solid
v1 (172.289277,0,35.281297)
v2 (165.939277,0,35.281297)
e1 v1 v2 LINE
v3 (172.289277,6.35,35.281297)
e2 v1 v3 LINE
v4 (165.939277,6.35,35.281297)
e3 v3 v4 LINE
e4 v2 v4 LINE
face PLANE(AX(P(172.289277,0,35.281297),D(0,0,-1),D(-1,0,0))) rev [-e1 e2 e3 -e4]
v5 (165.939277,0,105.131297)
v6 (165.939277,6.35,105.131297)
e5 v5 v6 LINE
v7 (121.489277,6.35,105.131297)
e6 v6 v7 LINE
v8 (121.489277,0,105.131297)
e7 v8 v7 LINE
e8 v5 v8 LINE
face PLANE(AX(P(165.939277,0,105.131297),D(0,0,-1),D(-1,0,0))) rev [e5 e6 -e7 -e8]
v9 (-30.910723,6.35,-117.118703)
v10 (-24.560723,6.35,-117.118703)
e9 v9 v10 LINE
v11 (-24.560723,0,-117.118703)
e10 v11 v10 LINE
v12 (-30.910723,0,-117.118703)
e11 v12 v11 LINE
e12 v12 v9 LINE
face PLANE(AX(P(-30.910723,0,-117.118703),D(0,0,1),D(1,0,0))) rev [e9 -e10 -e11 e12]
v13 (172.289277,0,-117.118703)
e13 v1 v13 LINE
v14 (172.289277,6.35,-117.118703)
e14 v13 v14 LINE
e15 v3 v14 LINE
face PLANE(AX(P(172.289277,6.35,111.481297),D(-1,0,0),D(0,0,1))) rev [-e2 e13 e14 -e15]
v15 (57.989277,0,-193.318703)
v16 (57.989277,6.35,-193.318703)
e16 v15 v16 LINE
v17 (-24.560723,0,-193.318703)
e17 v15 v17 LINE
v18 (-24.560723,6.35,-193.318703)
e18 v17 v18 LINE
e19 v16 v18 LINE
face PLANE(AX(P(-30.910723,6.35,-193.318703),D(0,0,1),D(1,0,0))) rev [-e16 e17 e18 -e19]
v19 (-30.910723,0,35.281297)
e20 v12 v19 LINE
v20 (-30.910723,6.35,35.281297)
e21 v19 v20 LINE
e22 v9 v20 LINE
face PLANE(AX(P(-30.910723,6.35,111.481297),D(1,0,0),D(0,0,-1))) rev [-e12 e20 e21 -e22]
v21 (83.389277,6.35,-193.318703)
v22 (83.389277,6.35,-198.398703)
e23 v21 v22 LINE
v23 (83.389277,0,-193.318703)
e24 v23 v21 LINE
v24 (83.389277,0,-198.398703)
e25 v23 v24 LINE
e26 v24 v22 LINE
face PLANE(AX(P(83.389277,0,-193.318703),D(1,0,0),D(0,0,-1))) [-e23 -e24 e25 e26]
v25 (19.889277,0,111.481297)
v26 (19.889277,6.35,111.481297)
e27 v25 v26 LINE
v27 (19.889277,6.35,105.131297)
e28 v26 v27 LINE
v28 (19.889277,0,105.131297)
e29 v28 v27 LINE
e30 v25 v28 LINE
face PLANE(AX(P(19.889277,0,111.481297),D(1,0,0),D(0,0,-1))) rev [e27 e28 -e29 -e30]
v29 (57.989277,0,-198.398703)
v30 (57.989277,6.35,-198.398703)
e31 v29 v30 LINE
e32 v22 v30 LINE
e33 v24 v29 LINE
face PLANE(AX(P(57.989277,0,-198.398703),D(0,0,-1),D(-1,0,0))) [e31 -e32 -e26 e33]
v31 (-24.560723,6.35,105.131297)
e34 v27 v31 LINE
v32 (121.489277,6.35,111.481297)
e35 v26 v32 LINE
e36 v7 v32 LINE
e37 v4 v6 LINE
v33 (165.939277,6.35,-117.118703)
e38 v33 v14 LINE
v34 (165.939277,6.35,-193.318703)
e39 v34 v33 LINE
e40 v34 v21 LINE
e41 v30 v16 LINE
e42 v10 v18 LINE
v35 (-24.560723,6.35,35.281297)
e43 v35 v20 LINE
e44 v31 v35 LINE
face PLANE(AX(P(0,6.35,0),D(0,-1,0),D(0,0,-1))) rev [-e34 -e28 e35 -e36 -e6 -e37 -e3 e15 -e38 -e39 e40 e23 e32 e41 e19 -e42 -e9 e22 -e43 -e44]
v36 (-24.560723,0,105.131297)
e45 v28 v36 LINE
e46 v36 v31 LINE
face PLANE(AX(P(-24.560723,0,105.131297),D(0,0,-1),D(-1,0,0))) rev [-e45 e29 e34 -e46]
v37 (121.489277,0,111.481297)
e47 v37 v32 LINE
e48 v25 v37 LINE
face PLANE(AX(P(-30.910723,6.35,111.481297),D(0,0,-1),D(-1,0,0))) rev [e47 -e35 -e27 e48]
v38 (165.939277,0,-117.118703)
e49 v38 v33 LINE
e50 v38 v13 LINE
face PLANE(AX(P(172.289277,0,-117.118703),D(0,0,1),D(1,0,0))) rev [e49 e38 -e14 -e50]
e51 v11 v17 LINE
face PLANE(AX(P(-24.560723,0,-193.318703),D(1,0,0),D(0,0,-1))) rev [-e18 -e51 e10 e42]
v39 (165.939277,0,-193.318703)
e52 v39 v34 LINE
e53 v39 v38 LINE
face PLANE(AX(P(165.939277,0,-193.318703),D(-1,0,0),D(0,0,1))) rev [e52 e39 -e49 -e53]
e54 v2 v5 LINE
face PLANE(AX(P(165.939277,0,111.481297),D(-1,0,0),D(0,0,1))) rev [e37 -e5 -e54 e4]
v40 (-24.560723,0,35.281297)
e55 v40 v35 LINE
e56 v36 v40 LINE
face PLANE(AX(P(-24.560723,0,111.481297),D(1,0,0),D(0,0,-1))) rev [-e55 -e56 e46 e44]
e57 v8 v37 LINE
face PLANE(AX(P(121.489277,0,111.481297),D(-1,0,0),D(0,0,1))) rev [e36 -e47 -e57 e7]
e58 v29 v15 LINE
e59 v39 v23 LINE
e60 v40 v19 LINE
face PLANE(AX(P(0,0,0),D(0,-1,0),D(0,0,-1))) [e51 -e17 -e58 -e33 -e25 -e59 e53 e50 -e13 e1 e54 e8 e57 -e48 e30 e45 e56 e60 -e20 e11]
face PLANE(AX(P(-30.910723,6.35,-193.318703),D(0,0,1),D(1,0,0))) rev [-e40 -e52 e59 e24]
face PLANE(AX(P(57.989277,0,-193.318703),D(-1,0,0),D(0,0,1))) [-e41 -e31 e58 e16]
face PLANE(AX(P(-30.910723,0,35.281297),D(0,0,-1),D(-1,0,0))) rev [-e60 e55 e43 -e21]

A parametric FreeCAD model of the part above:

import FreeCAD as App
import Part
import Sketcher
Q = App.Units.Quantity

doc = App.newDocument("Part")
body = doc.addObject("PartDesign::Body", "Body")

# Sketch on XZ plane
sketch1 = doc.addObject("Sketcher::SketchObject", "Sketch")
body.addObject(sketch1)
sketch1.AttachmentSupport = (doc.XZ_Plane, [""])
sketch1.MapMode = "FlatFace"
sketch1.addGeometry([
    Part.LineSegment(App.Vector(-31, -193, 0), App.Vector(-31, 111, 0)),
    Part.LineSegment(App.Vector(-31, 111, 0), App.Vector(172, 111, 0)),
    Part.LineSegment(App.Vector(172, 111, 0), App.Vector(172, -193, 0)),
    Part.LineSegment(App.Vector(172, -193, 0), App.Vector(-31, -193, 0)),
], False)
sketch1.addConstraint([
    Sketcher.Constraint("Coincident", 0, 2, 1, 1),
    Sketcher.Constraint("Coincident", 1, 2, 2, 1),
    Sketcher.Constraint("Coincident", 2, 2, 3, 1),
    Sketcher.Constraint("Coincident", 3, 2, 0, 1),
    Sketcher.Constraint("Vertical", 0),
    Sketcher.Constraint("Horizontal", 1),
    Sketcher.Constraint("Vertical", 2),
    Sketcher.Constraint("Horizontal", 3),
    Sketcher.Constraint("DistanceX", 1, 1, 1, 2, Q("8 in")),
    Sketcher.Constraint("DistanceY", 0, 1, 0, 2, Q("12 in")),
    Sketcher.Constraint("DistanceX", 0, 2, -1, 1, 30.910723),
    Sketcher.Constraint("DistanceY", -1, 1, 0, 2, 111.481297),
])
pad1 = doc.addObject("PartDesign::Pad", "Pad")
body.addObject(pad1)
pad1.Profile = sketch1
pad1.Length = Q("0.25 in")
pad1.Reversed = True

# Sketch on XZ plane
sketch2 = doc.addObject("Sketcher::SketchObject", "Sketch001")
body.addObject(sketch2)
sketch2.AttachmentSupport = (doc.XZ_Plane, [""])
sketch2.MapMode = "FlatFace"
sketch2.AttachmentOffset = App.Placement(App.Vector(0, 0, -0.25 * 25.4), App.Rotation())
sketch2.addGeometry([
    Part.LineSegment(App.Vector(-31, 35, 0), App.Vector(-31, 111, 0)),  # 0
    Part.LineSegment(App.Vector(-31, 111, 0), App.Vector(-25, 111, 0)),  # 1
    Part.LineSegment(App.Vector(-25, 111, 0), App.Vector(-25, 35, 0)),  # 2
    Part.LineSegment(App.Vector(-25, 35, 0), App.Vector(-31, 35, 0)),  # 3
    Part.LineSegment(App.Vector(-31, -193, 0), App.Vector(-31, -117, 0)),  # 4
    Part.LineSegment(App.Vector(-31, -117, 0), App.Vector(-25, -117, 0)),  # 5
    Part.LineSegment(App.Vector(-25, -117, 0), App.Vector(-25, -193, 0)),  # 6
    Part.LineSegment(App.Vector(-25, -193, 0), App.Vector(-31, -193, 0)),  # 7
    Part.LineSegment(App.Vector(166, -193, 0), App.Vector(166, -117, 0)),  # 8
    Part.LineSegment(App.Vector(166, -117, 0), App.Vector(172, -117, 0)),  # 9
    Part.LineSegment(App.Vector(172, -117, 0), App.Vector(172, -193, 0)),  # 10
    Part.LineSegment(App.Vector(172, -193, 0), App.Vector(166, -193, 0)),  # 11
    Part.LineSegment(App.Vector(166, 35, 0), App.Vector(166, 111, 0)),  # 12
    Part.LineSegment(App.Vector(166, 111, 0), App.Vector(172, 111, 0)),  # 13
    Part.LineSegment(App.Vector(172, 111, 0), App.Vector(172, 35, 0)),  # 14
    Part.LineSegment(App.Vector(172, 35, 0), App.Vector(166, 35, 0)),  # 15
], False)
sketch2.addConstraint([
    Sketcher.Constraint("Coincident", 0, 2, 1, 1),
    Sketcher.Constraint("Coincident", 1, 2, 2, 1),
    Sketcher.Constraint("Coincident", 2, 2, 3, 1),
    Sketcher.Constraint("Coincident", 3, 2, 0, 1),
    Sketcher.Constraint("Coincident", 4, 2, 5, 1),
    Sketcher.Constraint("Coincident", 5, 2, 6, 1),
    Sketcher.Constraint("Coincident", 6, 2, 7, 1),
    Sketcher.Constraint("Coincident", 7, 2, 4, 1),
    Sketcher.Constraint("Coincident", 8, 2, 9, 1),
    Sketcher.Constraint("Coincident", 9, 2, 10, 1),
    Sketcher.Constraint("Coincident", 10, 2, 11, 1),
    Sketcher.Constraint("Coincident", 11, 2, 8, 1),
    Sketcher.Constraint("Coincident", 12, 2, 13, 1),
    Sketcher.Constraint("Coincident", 13, 2, 14, 1),
    Sketcher.Constraint("Coincident", 14, 2, 15, 1),
    Sketcher.Constraint("Coincident", 15, 2, 12, 1),
    Sketcher.Constraint("Vertical", 0),
    Sketcher.Constraint("Horizontal", 1),
    Sketcher.Constraint("Vertical", 2),
    Sketcher.Constraint("Horizontal", 3),
    Sketcher.Constraint("Vertical", 4),
    Sketcher.Constraint("Horizontal", 5),
    Sketcher.Constraint("Vertical", 6),
    Sketcher.Constraint("Horizontal", 7),
    Sketcher.Constraint("Vertical", 8),
    Sketcher.Constraint("Horizontal", 9),
    Sketcher.Constraint("Vertical", 10),
    Sketcher.Constraint("Horizontal", 11),
    Sketcher.Constraint("Vertical", 12),
    Sketcher.Constraint("Horizontal", 13),
    Sketcher.Constraint("Vertical", 14),
    Sketcher.Constraint("Horizontal", 15),
    Sketcher.Constraint("Horizontal", 5, 2, 8, 2),
    Sketcher.Constraint("Horizontal", 7, 2, 10, 2),
    Sketcher.Constraint("Horizontal", 1, 2, 12, 2),
    Sketcher.Constraint("Horizontal", 3, 2, 14, 2),
    Sketcher.Constraint("Vertical", 3, 2, 4, 2),
    Sketcher.Constraint("Vertical", 2, 2, 5, 2),
    Sketcher.Constraint("Vertical", 11, 2, 12, 2),
    Sketcher.Constraint("Vertical", 10, 2, 13, 2),
    Sketcher.Constraint("Equal", 7, 9),
    Sketcher.Constraint("Equal", 2, 4),
    Sketcher.Constraint("DistanceY", 0, 1, 0, 2, Q("3 in")),
    Sketcher.Constraint("DistanceY", 4, 2, 3, 2, Q("6 in")),
    Sketcher.Constraint("DistanceX", 4, 2, 9, 2, Q("8 in")),
    Sketcher.Constraint("DistanceX", 1, 1, 1, 2, Q("0.25 in")),
    Sketcher.Constraint("DistanceX", 0, 2, -1, 1, 30.910723),
    Sketcher.Constraint("DistanceY", -1, 1, 0, 2, 111.481297),
])
pocket1 = doc.addObject("PartDesign::Pocket", "Pocket")
body.addObject(pocket1)
pocket1.Profile = sketch2
pocket1.Length = Q("0.25 in")
pocket1.Reversed = True

# Sketch on XZ plane
sketch3 = doc.addObject("Sketcher::SketchObject", "Sketch002")
body.addObject(sketch3)
sketch3.AttachmentSupport = (doc.XZ_Plane, [""])
sketch3.MapMode = "FlatFace"
sketch3.AttachmentOffset = App.Placement(App.Vector(0, 0, -0.25 * 25.4), App.Rotation())
sketch3.addGeometry([
    Part.LineSegment(App.Vector(58, -198, 0), App.Vector(58, -193, 0)),
    Part.LineSegment(App.Vector(58, -193, 0), App.Vector(83, -193, 0)),
    Part.LineSegment(App.Vector(83, -193, 0), App.Vector(83, -198, 0)),
    Part.LineSegment(App.Vector(83, -198, 0), App.Vector(58, -198, 0)),
], False)
sketch3.addConstraint([
    Sketcher.Constraint("Coincident", 0, 2, 1, 1),
    Sketcher.Constraint("Coincident", 1, 2, 2, 1),
    Sketcher.Constraint("Coincident", 2, 2, 3, 1),
    Sketcher.Constraint("Coincident", 3, 2, 0, 1),
    Sketcher.Constraint("Vertical", 0),
    Sketcher.Constraint("Horizontal", 1),
    Sketcher.Constraint("Vertical", 2),
    Sketcher.Constraint("Horizontal", 3),
    Sketcher.Constraint("DistanceX", 1, 1, 1, 2, Q("1 in")),
    Sketcher.Constraint("DistanceY", 0, 1, 0, 2, Q("0.2 in")),
    Sketcher.Constraint("DistanceX", -1, 1, 0, 2, 57.989277),
    Sketcher.Constraint("DistanceY", 0, 2, -1, 1, 193.318703),
])
pad2 = doc.addObject("PartDesign::Pad", "Pad001")
body.addObject(pad2)
pad2.Profile = sketch3
pad2.Length = Q("0.25 in")

# Sketch on XZ plane
sketch4 = doc.addObject("Sketcher::SketchObject", "Sketch003")
body.addObject(sketch4)
sketch4.AttachmentSupport = (doc.XZ_Plane, [""])
sketch4.MapMode = "FlatFace"
sketch4.AttachmentOffset = App.Placement(App.Vector(0, 0, -0.25 * 25.4), App.Rotation())
sketch4.addGeometry([
    Part.LineSegment(App.Vector(-25, 105, 0), App.Vector(-25, 111, 0)),  # 0
    Part.LineSegment(App.Vector(-25, 111, 0), App.Vector(20, 111, 0)),  # 1
    Part.LineSegment(App.Vector(20, 111, 0), App.Vector(20, 105, 0)),  # 2
    Part.LineSegment(App.Vector(20, 105, 0), App.Vector(-25, 105, 0)),  # 3
    Part.LineSegment(App.Vector(121, 105, 0), App.Vector(121, 111, 0)),  # 4
    Part.LineSegment(App.Vector(121, 111, 0), App.Vector(166, 111, 0)),  # 5
    Part.LineSegment(App.Vector(166, 111, 0), App.Vector(166, 105, 0)),  # 6
    Part.LineSegment(App.Vector(166, 105, 0), App.Vector(121, 105, 0)),  # 7
], False)
sketch4.addConstraint([
    Sketcher.Constraint("Coincident", 0, 2, 1, 1),
    Sketcher.Constraint("Coincident", 1, 2, 2, 1),
    Sketcher.Constraint("Coincident", 2, 2, 3, 1),
    Sketcher.Constraint("Coincident", 3, 2, 0, 1),
    Sketcher.Constraint("Coincident", 4, 2, 5, 1),
    Sketcher.Constraint("Coincident", 5, 2, 6, 1),
    Sketcher.Constraint("Coincident", 6, 2, 7, 1),
    Sketcher.Constraint("Coincident", 7, 2, 4, 1),
    Sketcher.Constraint("Vertical", 0),
    Sketcher.Constraint("Horizontal", 1),
    Sketcher.Constraint("Vertical", 2),
    Sketcher.Constraint("Horizontal", 3),
    Sketcher.Constraint("Vertical", 4),
    Sketcher.Constraint("Horizontal", 5),
    Sketcher.Constraint("Vertical", 6),
    Sketcher.Constraint("Horizontal", 7),
    Sketcher.Constraint("Horizontal", 1, 2, 4, 2),
    Sketcher.Constraint("Horizontal", 3, 2, 6, 2),
    Sketcher.Constraint("Equal", 3, 5),
    Sketcher.Constraint("DistanceX", 1, 2, 4, 2, Q("4 in")),
    Sketcher.Constraint("DistanceX", 1, 1, 1, 2, Q("1.75 in")),
    Sketcher.Constraint("DistanceY", 0, 1, 0, 2, Q("0.25 in")),
    Sketcher.Constraint("DistanceX", 0, 2, -1, 1, 24.560723),
    Sketcher.Constraint("DistanceY", -1, 1, 0, 2, 111.481297),
])
pocket2 = doc.addObject("PartDesign::Pocket", "Pocket001")
body.addObject(pocket2)
pocket2.Profile = sketch4
pocket2.Length = Q("0.25 in")
pocket2.Reversed = True

doc.recompute()
